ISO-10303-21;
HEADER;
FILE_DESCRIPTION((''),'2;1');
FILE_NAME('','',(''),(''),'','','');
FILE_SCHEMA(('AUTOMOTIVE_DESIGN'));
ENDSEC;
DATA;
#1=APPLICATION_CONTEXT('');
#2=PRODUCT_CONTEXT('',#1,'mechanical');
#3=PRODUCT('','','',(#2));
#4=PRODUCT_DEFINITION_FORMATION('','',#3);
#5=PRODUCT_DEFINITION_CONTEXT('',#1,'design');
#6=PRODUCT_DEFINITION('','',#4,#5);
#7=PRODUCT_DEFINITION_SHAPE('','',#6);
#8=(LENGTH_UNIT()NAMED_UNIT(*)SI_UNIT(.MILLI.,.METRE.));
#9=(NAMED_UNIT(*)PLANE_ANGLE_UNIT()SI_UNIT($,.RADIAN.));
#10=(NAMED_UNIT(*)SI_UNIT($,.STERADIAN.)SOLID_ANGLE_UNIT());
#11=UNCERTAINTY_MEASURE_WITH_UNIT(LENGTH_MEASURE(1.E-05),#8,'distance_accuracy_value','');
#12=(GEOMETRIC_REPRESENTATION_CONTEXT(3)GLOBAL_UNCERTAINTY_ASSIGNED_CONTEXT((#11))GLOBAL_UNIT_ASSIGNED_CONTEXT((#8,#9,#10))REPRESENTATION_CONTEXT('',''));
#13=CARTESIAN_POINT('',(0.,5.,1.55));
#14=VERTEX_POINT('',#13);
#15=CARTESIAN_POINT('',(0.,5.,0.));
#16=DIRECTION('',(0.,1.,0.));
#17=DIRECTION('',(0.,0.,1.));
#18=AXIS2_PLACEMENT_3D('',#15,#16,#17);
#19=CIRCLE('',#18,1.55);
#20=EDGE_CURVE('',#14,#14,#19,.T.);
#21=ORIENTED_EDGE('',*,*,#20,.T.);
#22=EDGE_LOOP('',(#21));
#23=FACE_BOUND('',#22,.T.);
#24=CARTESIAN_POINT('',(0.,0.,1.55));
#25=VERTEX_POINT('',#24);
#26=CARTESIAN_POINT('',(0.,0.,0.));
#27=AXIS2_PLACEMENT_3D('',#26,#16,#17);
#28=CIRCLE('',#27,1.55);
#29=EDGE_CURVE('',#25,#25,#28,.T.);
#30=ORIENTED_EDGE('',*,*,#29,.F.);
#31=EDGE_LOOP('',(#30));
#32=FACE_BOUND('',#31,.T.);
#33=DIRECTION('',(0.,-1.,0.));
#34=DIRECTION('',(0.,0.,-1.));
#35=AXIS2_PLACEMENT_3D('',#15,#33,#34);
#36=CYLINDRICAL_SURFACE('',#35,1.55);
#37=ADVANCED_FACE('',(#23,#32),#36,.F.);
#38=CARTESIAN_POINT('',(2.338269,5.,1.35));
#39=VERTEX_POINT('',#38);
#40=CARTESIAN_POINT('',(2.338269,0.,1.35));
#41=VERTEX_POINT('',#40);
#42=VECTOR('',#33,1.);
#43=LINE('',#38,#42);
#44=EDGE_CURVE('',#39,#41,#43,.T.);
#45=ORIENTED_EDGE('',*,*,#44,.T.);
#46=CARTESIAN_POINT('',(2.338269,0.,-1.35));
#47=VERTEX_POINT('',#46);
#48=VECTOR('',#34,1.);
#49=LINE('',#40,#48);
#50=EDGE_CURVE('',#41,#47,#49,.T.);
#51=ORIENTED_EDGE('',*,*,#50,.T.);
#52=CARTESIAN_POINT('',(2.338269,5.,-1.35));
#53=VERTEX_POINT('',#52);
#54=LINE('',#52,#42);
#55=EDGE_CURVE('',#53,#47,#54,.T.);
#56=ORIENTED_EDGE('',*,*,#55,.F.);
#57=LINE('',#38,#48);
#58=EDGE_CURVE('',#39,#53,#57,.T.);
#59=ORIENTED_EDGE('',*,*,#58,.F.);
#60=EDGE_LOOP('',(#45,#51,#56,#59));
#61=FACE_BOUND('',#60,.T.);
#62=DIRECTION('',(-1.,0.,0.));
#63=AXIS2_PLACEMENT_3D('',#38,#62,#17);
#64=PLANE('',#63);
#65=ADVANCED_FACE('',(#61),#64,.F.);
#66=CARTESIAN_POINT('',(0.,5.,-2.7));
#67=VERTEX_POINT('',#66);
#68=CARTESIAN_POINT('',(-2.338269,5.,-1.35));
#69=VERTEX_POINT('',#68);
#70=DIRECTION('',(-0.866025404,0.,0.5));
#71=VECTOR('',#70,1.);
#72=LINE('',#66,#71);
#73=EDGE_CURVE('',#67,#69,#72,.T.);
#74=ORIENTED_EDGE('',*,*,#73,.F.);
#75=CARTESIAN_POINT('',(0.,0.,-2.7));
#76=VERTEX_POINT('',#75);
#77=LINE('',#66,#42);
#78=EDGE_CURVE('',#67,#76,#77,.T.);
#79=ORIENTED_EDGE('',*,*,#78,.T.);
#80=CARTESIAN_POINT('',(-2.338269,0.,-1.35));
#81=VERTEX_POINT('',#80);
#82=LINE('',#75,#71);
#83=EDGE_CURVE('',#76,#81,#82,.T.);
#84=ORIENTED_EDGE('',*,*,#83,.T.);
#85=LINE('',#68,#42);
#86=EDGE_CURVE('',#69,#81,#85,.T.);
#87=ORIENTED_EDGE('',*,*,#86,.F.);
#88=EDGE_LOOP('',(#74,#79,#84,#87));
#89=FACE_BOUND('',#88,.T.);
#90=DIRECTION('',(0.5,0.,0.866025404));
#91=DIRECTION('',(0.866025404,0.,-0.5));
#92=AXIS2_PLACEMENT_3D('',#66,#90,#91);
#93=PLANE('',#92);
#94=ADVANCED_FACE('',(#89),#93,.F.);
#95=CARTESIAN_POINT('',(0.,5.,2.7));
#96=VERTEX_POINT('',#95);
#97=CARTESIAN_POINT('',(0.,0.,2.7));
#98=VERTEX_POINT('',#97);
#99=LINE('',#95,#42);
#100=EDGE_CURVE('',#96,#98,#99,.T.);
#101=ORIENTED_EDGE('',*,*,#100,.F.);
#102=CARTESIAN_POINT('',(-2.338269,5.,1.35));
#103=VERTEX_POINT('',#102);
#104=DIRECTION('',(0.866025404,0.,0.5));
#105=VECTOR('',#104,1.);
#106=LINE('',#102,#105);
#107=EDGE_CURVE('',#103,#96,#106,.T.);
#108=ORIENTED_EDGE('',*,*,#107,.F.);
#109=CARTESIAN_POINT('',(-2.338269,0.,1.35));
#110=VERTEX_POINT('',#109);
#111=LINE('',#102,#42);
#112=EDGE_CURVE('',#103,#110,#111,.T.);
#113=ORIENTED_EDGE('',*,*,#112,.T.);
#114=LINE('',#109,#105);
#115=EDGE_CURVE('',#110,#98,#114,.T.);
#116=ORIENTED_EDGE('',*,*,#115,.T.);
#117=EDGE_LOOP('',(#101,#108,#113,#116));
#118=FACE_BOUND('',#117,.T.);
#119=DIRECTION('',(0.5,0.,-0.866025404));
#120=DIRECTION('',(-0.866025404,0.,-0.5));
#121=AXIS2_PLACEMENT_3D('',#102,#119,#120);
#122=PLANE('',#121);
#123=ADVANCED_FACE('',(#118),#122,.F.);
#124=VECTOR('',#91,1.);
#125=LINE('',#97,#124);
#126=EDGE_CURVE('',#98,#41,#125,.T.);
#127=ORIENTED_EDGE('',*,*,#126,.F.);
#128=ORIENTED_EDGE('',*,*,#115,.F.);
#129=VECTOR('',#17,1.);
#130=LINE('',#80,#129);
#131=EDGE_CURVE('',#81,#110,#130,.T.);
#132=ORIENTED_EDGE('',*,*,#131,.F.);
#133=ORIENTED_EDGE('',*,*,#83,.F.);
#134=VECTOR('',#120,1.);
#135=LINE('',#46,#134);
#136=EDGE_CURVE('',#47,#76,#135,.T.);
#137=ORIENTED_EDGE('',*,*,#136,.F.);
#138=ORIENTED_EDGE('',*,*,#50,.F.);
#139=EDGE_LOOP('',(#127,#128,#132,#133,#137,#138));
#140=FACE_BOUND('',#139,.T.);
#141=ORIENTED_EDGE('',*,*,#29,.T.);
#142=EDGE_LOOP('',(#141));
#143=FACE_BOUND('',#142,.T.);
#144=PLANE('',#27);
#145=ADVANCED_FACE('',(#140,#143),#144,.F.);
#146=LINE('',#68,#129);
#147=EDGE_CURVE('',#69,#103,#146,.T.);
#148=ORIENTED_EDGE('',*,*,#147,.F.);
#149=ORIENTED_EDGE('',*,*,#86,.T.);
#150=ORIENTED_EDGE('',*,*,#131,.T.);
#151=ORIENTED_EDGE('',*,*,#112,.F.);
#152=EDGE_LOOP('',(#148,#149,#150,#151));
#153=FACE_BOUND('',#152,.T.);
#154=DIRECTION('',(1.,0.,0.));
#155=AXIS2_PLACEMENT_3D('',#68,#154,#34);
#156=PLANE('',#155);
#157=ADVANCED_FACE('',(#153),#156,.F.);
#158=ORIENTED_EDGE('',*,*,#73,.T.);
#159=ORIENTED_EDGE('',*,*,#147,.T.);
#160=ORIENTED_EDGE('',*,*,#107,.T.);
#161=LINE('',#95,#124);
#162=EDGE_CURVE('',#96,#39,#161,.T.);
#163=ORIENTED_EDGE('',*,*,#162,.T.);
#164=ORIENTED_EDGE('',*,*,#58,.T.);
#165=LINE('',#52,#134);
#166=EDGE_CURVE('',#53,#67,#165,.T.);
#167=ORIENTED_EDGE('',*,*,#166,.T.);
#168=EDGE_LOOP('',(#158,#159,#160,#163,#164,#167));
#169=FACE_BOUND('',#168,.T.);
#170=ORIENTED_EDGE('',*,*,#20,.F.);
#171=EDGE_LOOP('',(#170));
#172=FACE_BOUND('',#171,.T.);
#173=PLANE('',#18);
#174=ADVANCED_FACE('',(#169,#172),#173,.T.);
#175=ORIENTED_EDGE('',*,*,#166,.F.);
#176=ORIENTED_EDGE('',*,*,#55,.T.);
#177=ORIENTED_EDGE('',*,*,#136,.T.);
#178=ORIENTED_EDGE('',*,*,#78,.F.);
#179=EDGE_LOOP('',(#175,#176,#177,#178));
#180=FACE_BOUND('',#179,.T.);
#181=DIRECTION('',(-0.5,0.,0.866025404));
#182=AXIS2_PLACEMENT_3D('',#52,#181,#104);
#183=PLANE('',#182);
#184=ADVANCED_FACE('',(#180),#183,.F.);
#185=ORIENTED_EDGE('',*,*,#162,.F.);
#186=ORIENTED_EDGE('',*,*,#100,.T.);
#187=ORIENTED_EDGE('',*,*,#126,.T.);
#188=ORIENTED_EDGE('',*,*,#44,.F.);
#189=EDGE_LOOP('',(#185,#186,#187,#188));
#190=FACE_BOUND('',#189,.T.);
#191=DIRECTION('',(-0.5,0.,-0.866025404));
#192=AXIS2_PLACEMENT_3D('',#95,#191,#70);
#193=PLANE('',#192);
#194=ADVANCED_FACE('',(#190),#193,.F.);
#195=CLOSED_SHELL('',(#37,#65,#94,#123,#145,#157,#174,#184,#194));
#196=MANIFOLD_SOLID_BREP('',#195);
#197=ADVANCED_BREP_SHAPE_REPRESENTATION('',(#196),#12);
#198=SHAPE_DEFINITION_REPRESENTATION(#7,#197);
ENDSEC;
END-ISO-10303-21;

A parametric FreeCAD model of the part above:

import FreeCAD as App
import Part
import Sketcher

V = App.Vector
Q = App.Units.Quantity

doc = App.newDocument("Part")
params = doc.addObject("Spreadsheet::Sheet", "Params")
for row, (alias, value) in enumerate([
    ("sketch1_diameter", "3.1 mm"),
    ("sketch1_height", "2.7 mm"),
    ("sketch1_length", "2.7 mm"),
    ("pad1_length", "5 mm"),
], start=1):
    params.set(f"A{row}", alias)
    params.set(f"B{row}", "=" + value)
    params.setAlias(f"B{row}", alias)

body = doc.addObject("PartDesign::Body", "Body")

# Sketch on XZ plane
sketch1 = body.newObject("Sketcher::SketchObject", "Sketch")
sketch1.AttachmentSupport = (doc.getObject("XZ_Plane"), [""])
sketch1.MapMode = "FlatFace"
sketch1.addGeometry([
    Part.LineSegment(V(0, -2.7, 0), V(-2.3, -1.4, 0)),  # 0
    Part.LineSegment(V(-2.3, -1.4, 0), V(-2.3, 1.4, 0)),  # 1
    Part.LineSegment(V(-2.3, 1.4, 0), V(0, 2.7, 0)),  # 2
    Part.LineSegment(V(0, 2.7, 0), V(2.3, 1.4, 0)),  # 3
    Part.LineSegment(V(2.3, 1.4, 0), V(2.3, -1.4, 0)),  # 4
    Part.LineSegment(V(2.3, -1.4, 0), V(0, -2.7, 0)),  # 5
    Part.Circle(V(0, 0, 0), V(0, 0, 1), 1.6),  # 6
], False)
sketch1.addConstraint([
    Sketcher.Constraint("Coincident", 0, 2, 1, 1),
    Sketcher.Constraint("Coincident", 1, 2, 2, 1),
    Sketcher.Constraint("Coincident", 2, 2, 3, 1),
    Sketcher.Constraint("Coincident", 3, 2, 4, 1),
    Sketcher.Constraint("Coincident", 4, 2, 5, 1),
    Sketcher.Constraint("Coincident", 5, 2, 0, 1),
    Sketcher.Constraint("Vertical", 1),
    Sketcher.Constraint("Vertical", 4),
    Sketcher.Constraint("Coincident", 6, 3, -1, 1),
    Sketcher.Constraint("Symmetric", 0, 2, 3, 2, -1, 1),
    Sketcher.Constraint("Symmetric", 2, 2, 5, 2, -1, 1),
    Sketcher.Constraint("PointOnObject", 2, 2, -2),
    Sketcher.Constraint("Parallel", 2, 5),
    Sketcher.Constraint("Horizontal", 1, 2, 3, 2),
    Sketcher.Constraint("Diameter", 6, Q("3.1 mm")),
    Sketcher.Constraint("Angle", 0, Q("150 deg")),
    Sketcher.Constraint("DistanceY", 1, 1, 1, 2, Q("2.7 mm")),
    Sketcher.Constraint("Distance", 0, Q("2.7 mm")),
])
sketch1.setExpression("Constraints[14]", "Params.sketch1_diameter")
sketch1.setExpression("Constraints[16]", "Params.sketch1_height")
sketch1.setExpression("Constraints[17]", "Params.sketch1_length")
pad1 = body.newObject("PartDesign::Pad", "Pad")
pad1.Profile = sketch1
pad1.setExpression("Length", "Params.pad1_length")
pad1.Reversed = True

doc.recompute()
